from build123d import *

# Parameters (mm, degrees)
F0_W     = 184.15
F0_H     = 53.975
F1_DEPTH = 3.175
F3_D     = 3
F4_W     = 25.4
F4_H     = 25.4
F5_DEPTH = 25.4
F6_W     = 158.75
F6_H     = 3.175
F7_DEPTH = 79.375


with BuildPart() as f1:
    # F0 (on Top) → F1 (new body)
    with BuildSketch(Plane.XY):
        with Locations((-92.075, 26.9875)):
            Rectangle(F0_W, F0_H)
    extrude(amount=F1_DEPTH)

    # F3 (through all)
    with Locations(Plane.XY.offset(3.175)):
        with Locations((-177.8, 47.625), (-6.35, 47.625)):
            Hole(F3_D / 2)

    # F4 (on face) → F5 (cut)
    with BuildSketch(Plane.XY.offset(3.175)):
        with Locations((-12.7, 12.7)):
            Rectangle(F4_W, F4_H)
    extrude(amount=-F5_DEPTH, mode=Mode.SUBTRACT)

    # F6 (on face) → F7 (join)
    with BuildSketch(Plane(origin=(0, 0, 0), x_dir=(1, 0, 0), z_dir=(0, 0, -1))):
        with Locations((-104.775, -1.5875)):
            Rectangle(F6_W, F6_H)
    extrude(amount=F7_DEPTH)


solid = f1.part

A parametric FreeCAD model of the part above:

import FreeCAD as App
import Part
import Sketcher
from FreeCAD import Vector
Q = App.Units.Quantity

doc = App.newDocument("Part")
body = doc.addObject("PartDesign::Body", "Body")

# Sketch on XY plane
sketch1 = body.newObject("Sketcher::SketchObject", "Sketch")
sketch1.AttachmentSupport = (doc.getObject("XY_Plane"), [""])
sketch1.MapMode = "FlatFace"
sketch1.addGeometry([
    Part.LineSegment(Vector(-184, 54, 0), Vector(-184, 0, 0)),
    Part.LineSegment(Vector(-184, 0, 0), Vector(0, 0, 0)),
    Part.LineSegment(Vector(0, 0, 0), Vector(0, 54, 0)),
    Part.LineSegment(Vector(0, 54, 0), Vector(-184, 54, 0)),
], False)
sketch1.addConstraint([
    Sketcher.Constraint("Coincident", 0, 2, 1, 1),
    Sketcher.Constraint("Coincident", 1, 2, 2, 1),
    Sketcher.Constraint("Coincident", 2, 2, 3, 1),
    Sketcher.Constraint("Coincident", 3, 2, 0, 1),
    Sketcher.Constraint("Vertical", 0),
    Sketcher.Constraint("Horizontal", 1),
    Sketcher.Constraint("Vertical", 2),
    Sketcher.Constraint("Horizontal", 3),
    Sketcher.Constraint("Coincident", 1, 2, -1, 1),
    Sketcher.Constraint("DistanceX", 1, 1, 1, 2, Q("7.25 in")),
    Sketcher.Constraint("DistanceY", 0, 2, 0, 1, Q("2.125 in")),
])
pad1 = body.newObject("PartDesign::Pad", "Pad")
pad1.Profile = sketch1
pad1.Length = Q("0.125 in")

# Sketch on XY plane
sketch2 = body.newObject("Sketcher::SketchObject", "Sketch001")
sketch2.AttachmentSupport = (doc.getObject("XY_Plane"), [""])
sketch2.MapMode = "FlatFace"
sketch2.AttachmentOffset = App.Placement(Vector(0, 0, 0.125 * 25.4), App.Rotation())
sketch2.addGeometry([
    Part.Circle(Vector(-177.8, 47.6, 0), Vector(0, 0, 1), 1.5),
    Part.Circle(Vector(-6.3, 47.6, 0), Vector(0, 0, 1), 1.5),
], False)
sketch2.addConstraint([
    Sketcher.Constraint("Equal", 0, 1),
    Sketcher.Constraint("Horizontal", 0, 3, 1, 3),
    Sketcher.Constraint("DistanceX", 0, 3, -1, 1, Q("7 in")),
    Sketcher.Constraint("Diameter", 0, 3.0),
    Sketcher.Constraint("DistanceX", 1, 3, -1, 1, Q("0.25 in")),
    Sketcher.Constraint("DistanceY", -1, 1, 0, 3, Q("1.875 in")),
])
doc.recompute()
hole = body.newObject("PartDesign::Hole", "Hole")
hole.Profile = sketch2
hole.ThreadType = "None"
hole.Diameter = 3
hole.DepthType = "ThroughAll"

# Sketch on XY plane
sketch3 = body.newObject("Sketcher::SketchObject", "Sketch002")
sketch3.AttachmentSupport = (doc.getObject("XY_Plane"), [""])
sketch3.MapMode = "FlatFace"
sketch3.AttachmentOffset = App.Placement(Vector(0, 0, 0.125 * 25.4), App.Rotation())
sketch3.addGeometry([
    Part.LineSegment(Vector(-25, 25, 0), Vector(-25, 0, 0)),
    Part.LineSegment(Vector(-25, 0, 0), Vector(0, 0, 0)),
    Part.LineSegment(Vector(0, 0, 0), Vector(0, 25, 0)),
    Part.LineSegment(Vector(0, 25, 0), Vector(-25, 25, 0)),
], False)
sketch3.addConstraint([
    Sketcher.Constraint("Coincident", 0, 2, 1, 1),
    Sketcher.Constraint("Coincident", 1, 2, 2, 1),
    Sketcher.Constraint("Coincident", 2, 2, 3, 1),
    Sketcher.Constraint("Coincident", 3, 2, 0, 1),
    Sketcher.Constraint("Vertical", 0),
    Sketcher.Constraint("Horizontal", 1),
    Sketcher.Constraint("Vertical", 2),
    Sketcher.Constraint("Horizontal", 3),
    Sketcher.Constraint("Coincident", 1, 2, -1, 1),
    Sketcher.Constraint("Equal", 3, 0),
    Sketcher.Constraint("DistanceX", 1, 1, 1, 2, Q("1 in")),
])
pocket1 = body.newObject("PartDesign::Pocket", "Pocket")
pocket1.Profile = sketch3
pocket1.Length = Q("1 in")

# Sketch on XY plane
sketch4 = body.newObject("Sketcher::SketchObject", "Sketch003")
sketch4.AttachmentSupport = (doc.getObject("XY_Plane"), [""])
sketch4.MapMode = "FlatFace"
sketch4.addGeometry([
    Part.LineSegment(Vector(-184.2, 0, 0), Vector(-184.2, 3.2, 0)),
    Part.LineSegment(Vector(-184.2, 3.2, 0), Vector(-25.4, 3.2, 0)),
    Part.LineSegment(Vector(-25.4, 3.2, 0), Vector(-25.4, 0, 0)),
    Part.LineSegment(Vector(-25.4, 0, 0), Vector(-184.2, 0, 0)),
], False)
sketch4.addConstraint([
    Sketcher.Constraint("Coincident", 0, 2, 1, 1),
    Sketcher.Constraint("Coincident", 1, 2, 2, 1),
    Sketcher.Constraint("Coincident", 2, 2, 3, 1),
    Sketcher.Constraint("Coincident", 3, 2, 0, 1),
    Sketcher.Constraint("Vertical", 0),
    Sketcher.Constraint("Horizontal", 1),
    Sketcher.Constraint("Vertical", 2),
    Sketcher.Constraint("Horizontal", 3),
    Sketcher.Constraint("PointOnObject", 2, 2, -1),
    Sketcher.Constraint("DistanceX", 1, 2, -1, 1, Q("1 in")),
    Sketcher.Constraint("DistanceX", 1, 1, 1, 2, Q("6.25 in")),
    Sketcher.Constraint("DistanceY", 0, 1, 0, 2, Q("0.125 in")),
])
pad2 = body.newObject("PartDesign::Pad", "Pad001")
pad2.Profile = sketch4
pad2.Length = Q("3.125 in")
pad2.Reversed = True

doc.recompute()
